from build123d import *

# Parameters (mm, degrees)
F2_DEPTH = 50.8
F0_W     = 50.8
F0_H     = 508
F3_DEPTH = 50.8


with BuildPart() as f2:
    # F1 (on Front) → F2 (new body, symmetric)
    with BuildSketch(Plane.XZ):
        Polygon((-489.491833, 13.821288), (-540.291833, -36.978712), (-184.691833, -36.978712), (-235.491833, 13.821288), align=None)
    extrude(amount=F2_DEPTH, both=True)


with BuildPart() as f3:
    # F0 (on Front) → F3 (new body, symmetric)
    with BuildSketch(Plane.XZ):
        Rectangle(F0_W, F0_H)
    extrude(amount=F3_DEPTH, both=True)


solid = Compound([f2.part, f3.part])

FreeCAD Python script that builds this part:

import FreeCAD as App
import Part
import Sketcher
from FreeCAD import Vector
Q = App.Units.Quantity

doc = App.newDocument("Part")
body = doc.addObject("PartDesign::Body", "Body")

# Sketch on XZ plane
sketch1 = body.newObject("Sketcher::SketchObject", "Sketch")
sketch1.AttachmentSupport = (doc.getObject("XZ_Plane"), [""])
sketch1.MapMode = "FlatFace"
sketch1.addGeometry([
    Part.LineSegment(Vector(-489.491833, 13.821288, 0), Vector(-540.291833, -36.978712, 0)),
    Part.LineSegment(Vector(-540.291833, -36.978712, 0), Vector(-184.691833, -36.978712, 0)),
    Part.LineSegment(Vector(-184.691833, -36.978712, 0), Vector(-235.491833, 13.821288, 0)),
    Part.LineSegment(Vector(-235.491833, 13.821288, 0), Vector(-489.491833, 13.821288, 0)),
], False)
sketch1.addConstraint([
    Sketcher.Constraint("Coincident", 0, 2, 1, 1),
    Sketcher.Constraint("Coincident", 1, 2, 2, 1),
    Sketcher.Constraint("Coincident", 2, 2, 3, 1),
    Sketcher.Constraint("Coincident", 3, 2, 0, 1),
    Sketcher.Constraint("Horizontal", 1),
    Sketcher.Constraint("Horizontal", 3),
    Sketcher.Constraint("Perpendicular", 0, 2),
    Sketcher.Constraint("Equal", 0, 2),
    Sketcher.Constraint("DistanceX", 1, 1, 1, 2, Q("14 in")),
    Sketcher.Constraint("DistanceX", 3, 2, 3, 1, Q("10 in")),
    Sketcher.Constraint("DistanceX", 0, 2, -1, 1, 540.291833),
    Sketcher.Constraint("DistanceY", 0, 2, -1, 1, 36.978712),
])
pad1 = body.newObject("PartDesign::Pad", "Pad")
pad1.Profile = sketch1
pad1.Length = Q("4 in")
pad1.Midplane = True
body2 = doc.addObject("PartDesign::Body", "Body001")

# Sketch on XZ plane
sketch2 = body2.newObject("Sketcher::SketchObject", "Sketch001")
sketch2.AttachmentSupport = (doc.getObject("XZ_Plane001"), [""])
sketch2.MapMode = "FlatFace"
sketch2.addGeometry([
    Part.LineSegment(Vector(-25.4, 254, 0), Vector(-25.4, -254, 0)),
    Part.LineSegment(Vector(-25.4, -254, 0), Vector(25.4, -254, 0)),
    Part.LineSegment(Vector(25.4, -254, 0), Vector(25.4, 254, 0)),
    Part.LineSegment(Vector(25.4, 254, 0), Vector(-25.4, 254, 0)),
], False)
sketch2.addConstraint([
    Sketcher.Constraint("Coincident", 0, 2, 1, 1),
    Sketcher.Constraint("Coincident", 1, 2, 2, 1),
    Sketcher.Constraint("Coincident", 2, 2, 3, 1),
    Sketcher.Constraint("Coincident", 3, 2, 0, 1),
    Sketcher.Constraint("Vertical", 0),
    Sketcher.Constraint("Horizontal", 1),
    Sketcher.Constraint("Vertical", 2),
    Sketcher.Constraint("Horizontal", 3),
    Sketcher.Constraint("Symmetric", 0, 2, 2, 2, -1, 1),
    Sketcher.Constraint("DistanceX", 1, 1, 1, 2, Q("2 in")),
    Sketcher.Constraint("DistanceY", 0, 2, 0, 1, Q("20 in")),
])
pad2 = body2.newObject("PartDesign::Pad", "Pad001")
pad2.Profile = sketch2
pad2.Length = Q("4 in")
pad2.Midplane = True

doc.recompute()
